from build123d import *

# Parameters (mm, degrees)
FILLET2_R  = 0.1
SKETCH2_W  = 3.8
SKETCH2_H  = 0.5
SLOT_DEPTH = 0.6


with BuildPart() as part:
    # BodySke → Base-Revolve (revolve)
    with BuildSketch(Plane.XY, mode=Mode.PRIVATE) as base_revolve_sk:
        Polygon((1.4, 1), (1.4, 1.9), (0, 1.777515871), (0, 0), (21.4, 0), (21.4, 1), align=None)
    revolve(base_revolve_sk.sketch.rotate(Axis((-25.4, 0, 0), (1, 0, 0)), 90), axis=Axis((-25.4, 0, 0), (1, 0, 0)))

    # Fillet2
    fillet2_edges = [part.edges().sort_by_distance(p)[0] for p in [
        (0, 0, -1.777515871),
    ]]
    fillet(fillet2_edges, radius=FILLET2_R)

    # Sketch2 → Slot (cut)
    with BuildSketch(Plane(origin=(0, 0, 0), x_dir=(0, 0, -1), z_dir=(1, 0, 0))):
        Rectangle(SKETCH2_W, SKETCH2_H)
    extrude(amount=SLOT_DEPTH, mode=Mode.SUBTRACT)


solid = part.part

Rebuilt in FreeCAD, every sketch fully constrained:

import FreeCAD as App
import Part
import Sketcher
Q = App.Units.Quantity


def edges_at(feature, points):
    """Names of the edges that pass closest to the given points."""
    edges = feature.Shape.Edges
    near = lambda p: min(range(len(edges)), key=lambda i: edges[i].distToShape(Part.Vertex(*p))[0])
    return sorted({f"Edge{near(p) + 1}" for p in points})


def add_polygon(sketch, points):
    """Adds a closed chain of lines whose ends are joined by coincident constraints."""
    first, n = sketch.GeometryCount, len(points)
    for a, b in zip(points, points[1:] + points[:1]):
        sketch.addGeometry(Part.LineSegment(App.Vector(*a, 0), App.Vector(*b, 0)), False)
    for i in range(n):
        sketch.addConstraint(Sketcher.Constraint("Coincident", first + i, 2, first + (i + 1) % n, 1))

doc = App.newDocument("Part")
body = doc.addObject("PartDesign::Body", "Body")

sketch1 = body.newObject("Sketcher::SketchObject", "Sketch")
sketch1.AttachmentSupport = (doc.getObject("XY_Plane"), [""])
sketch1.MapMode = "FlatFace"
add_polygon(sketch1, [(1.4, 1), (1.4, 1.9), (0, 1.777516), (0, 0), (21.4, 0), (21.4, 1)])
sketch1.addConstraint([
    Sketcher.Constraint("Vertical", 0),
    Sketcher.Constraint("Vertical", 2),
    Sketcher.Constraint("Horizontal", 3),
    Sketcher.Constraint("Vertical", 4),
    Sketcher.Constraint("Horizontal", 5),
    Sketcher.Constraint("Coincident", 2, 2, -1, 1),
    Sketcher.Constraint("DistanceX", 5, 2, 5, 1, 20.0),
    Sketcher.Constraint("DistanceY", 4, 1, 4, 2, 1.0),
    Sketcher.Constraint("Angle", 1, Q("-175 deg")),
    Sketcher.Constraint("DistanceX", 3, 1, 3, 2, 21.4),
    Sketcher.Constraint("DistanceY", 0, 1, 0, 2, 0.9),
])
revolution = body.newObject("PartDesign::Revolution", "Revolution")
revolution.Profile = sketch1
revolution.ReferenceAxis = (sketch1, ["H_Axis"])
revolution.Angle = 360
doc.recompute()

fillet = body.newObject("PartDesign::Fillet", "Fillet")
fillet.Base = (revolution, edges_at(revolution, [(0, 0, -1.778)]))
fillet.Radius = 0.1

sketch2 = body.newObject("Sketcher::SketchObject", "Sketch001")
sketch2.AttachmentSupport = (doc.getObject("YZ_Plane"), [""])
sketch2.MapMode = "FlatFace"
add_polygon(sketch2, [(0.25, 1.9), (-0.25, 1.9), (-0.25, -1.9), (0.25, -1.9)])
sketch2.addConstraint([
    Sketcher.Constraint("Horizontal", 0),
    Sketcher.Constraint("Vertical", 1),
    Sketcher.Constraint("Horizontal", 2),
    Sketcher.Constraint("Vertical", 3),
    Sketcher.Constraint("Symmetric", 0, 2, 2, 2, -1, 1),
    Sketcher.Constraint("DistanceX", 0, 2, 0, 1, 0.5),
    Sketcher.Constraint("DistanceY", 1, 2, 1, 1, 3.8),
])
pocket1 = body.newObject("PartDesign::Pocket", "Pocket")
pocket1.Profile = sketch2
pocket1.Length = 0.6
pocket1.Reversed = True

doc.recompute()
